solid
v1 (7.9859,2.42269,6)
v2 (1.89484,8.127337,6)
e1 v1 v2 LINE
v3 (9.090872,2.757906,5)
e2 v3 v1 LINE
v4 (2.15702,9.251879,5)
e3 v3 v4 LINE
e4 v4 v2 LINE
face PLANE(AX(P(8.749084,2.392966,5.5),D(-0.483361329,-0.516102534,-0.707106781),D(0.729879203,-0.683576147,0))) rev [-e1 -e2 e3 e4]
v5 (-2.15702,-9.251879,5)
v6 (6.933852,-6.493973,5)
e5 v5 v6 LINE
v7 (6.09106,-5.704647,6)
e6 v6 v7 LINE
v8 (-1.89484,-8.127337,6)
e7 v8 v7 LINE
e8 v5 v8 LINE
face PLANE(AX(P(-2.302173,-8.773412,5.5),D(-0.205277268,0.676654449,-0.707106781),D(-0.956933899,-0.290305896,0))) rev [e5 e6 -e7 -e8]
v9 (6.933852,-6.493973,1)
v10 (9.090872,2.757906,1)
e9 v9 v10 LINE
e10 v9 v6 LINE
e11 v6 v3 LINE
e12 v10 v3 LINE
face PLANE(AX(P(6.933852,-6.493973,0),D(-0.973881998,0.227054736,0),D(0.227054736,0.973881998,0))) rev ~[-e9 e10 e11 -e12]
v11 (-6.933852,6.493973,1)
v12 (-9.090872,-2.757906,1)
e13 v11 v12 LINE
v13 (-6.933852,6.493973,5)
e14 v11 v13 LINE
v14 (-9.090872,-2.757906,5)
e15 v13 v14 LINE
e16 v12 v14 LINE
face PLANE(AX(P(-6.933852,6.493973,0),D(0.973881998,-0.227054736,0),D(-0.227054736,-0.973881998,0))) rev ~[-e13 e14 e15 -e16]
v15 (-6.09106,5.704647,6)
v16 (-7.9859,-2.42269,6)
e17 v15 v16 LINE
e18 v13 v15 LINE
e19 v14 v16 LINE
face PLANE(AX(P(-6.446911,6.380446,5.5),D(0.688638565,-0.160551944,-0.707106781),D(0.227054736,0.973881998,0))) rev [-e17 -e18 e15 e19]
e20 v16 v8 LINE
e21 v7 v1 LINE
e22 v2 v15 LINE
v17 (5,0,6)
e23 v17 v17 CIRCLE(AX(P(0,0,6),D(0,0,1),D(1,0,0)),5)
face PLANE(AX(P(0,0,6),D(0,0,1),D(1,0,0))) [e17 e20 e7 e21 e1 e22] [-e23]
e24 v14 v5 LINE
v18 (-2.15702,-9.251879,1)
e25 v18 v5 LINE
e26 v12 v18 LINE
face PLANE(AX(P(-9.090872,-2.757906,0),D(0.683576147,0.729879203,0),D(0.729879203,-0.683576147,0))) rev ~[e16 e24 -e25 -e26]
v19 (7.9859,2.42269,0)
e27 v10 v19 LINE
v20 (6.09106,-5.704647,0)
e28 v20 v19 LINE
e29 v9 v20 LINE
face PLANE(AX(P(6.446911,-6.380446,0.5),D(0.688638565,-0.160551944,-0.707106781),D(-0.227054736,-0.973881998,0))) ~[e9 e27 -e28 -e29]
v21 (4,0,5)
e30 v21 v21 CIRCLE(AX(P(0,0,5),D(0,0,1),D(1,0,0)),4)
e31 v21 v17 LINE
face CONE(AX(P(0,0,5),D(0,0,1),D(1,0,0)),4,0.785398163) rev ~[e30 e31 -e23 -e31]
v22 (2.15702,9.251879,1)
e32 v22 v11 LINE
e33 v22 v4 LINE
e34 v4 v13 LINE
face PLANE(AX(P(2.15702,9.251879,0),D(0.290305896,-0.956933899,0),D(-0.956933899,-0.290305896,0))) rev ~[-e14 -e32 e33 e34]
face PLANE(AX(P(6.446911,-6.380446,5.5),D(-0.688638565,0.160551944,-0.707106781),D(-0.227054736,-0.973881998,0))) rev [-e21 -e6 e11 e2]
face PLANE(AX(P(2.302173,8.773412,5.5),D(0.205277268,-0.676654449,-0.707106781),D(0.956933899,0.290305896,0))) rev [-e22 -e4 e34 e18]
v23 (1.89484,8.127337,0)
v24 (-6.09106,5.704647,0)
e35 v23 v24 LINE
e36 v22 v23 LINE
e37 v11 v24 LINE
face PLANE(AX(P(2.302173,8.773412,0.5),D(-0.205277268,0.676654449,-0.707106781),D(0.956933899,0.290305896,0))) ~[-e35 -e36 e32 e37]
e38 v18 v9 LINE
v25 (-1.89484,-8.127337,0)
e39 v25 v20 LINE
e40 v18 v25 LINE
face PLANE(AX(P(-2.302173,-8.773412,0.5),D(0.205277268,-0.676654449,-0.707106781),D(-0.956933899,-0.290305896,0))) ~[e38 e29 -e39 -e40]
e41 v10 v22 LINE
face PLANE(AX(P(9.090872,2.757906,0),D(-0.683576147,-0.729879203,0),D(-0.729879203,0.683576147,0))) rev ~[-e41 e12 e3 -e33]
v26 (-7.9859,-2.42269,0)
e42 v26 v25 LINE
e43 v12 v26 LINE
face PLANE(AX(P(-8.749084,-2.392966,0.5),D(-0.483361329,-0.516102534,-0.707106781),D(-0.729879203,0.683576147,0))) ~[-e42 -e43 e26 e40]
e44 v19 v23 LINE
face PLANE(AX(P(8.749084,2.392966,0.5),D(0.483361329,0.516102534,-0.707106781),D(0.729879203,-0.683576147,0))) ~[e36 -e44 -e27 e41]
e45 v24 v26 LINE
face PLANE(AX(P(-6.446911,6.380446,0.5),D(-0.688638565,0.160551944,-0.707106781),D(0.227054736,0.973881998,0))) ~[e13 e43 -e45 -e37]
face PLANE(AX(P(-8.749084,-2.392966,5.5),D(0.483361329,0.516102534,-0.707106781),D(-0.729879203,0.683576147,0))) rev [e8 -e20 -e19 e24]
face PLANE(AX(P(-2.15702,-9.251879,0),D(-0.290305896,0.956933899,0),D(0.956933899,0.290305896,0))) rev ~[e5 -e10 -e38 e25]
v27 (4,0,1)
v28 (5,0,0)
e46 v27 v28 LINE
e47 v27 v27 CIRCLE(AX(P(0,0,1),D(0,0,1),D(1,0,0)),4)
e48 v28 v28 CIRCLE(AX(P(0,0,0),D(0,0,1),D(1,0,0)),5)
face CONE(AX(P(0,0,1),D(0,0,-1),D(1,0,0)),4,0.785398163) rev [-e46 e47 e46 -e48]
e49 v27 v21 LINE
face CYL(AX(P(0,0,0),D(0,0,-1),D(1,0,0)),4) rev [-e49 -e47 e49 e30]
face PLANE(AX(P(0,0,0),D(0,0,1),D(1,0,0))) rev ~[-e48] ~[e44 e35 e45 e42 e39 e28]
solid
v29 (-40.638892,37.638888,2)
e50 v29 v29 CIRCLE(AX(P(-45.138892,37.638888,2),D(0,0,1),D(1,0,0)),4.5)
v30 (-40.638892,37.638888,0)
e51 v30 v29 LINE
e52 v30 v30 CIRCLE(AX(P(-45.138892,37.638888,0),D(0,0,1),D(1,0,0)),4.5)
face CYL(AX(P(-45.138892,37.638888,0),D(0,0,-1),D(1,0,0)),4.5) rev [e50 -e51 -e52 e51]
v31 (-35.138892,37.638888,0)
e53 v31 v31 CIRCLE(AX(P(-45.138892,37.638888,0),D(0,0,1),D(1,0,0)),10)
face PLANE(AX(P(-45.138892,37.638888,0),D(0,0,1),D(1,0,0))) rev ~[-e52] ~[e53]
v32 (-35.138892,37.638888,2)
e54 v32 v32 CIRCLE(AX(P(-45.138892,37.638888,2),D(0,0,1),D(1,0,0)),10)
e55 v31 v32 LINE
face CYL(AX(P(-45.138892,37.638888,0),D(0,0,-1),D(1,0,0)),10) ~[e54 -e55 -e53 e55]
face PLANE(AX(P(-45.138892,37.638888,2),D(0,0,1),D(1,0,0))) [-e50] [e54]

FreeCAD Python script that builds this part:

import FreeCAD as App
import Part
import Sketcher

V = App.Vector


def edges_at(feature, points):
    """Names of the edges that pass closest to the given points."""
    edges = feature.Shape.Edges
    near = lambda p: min(range(len(edges)), key=lambda i: edges[i].distToShape(Part.Vertex(*p))[0])
    return sorted({f"Edge{near(p) + 1}" for p in points})

doc = App.newDocument("Part")
body = doc.addObject("PartDesign::Body", "Body")

sketch1 = body.newObject("Sketcher::SketchObject", "Sketch")
sketch1.AttachmentSupport = (doc.getObject("XY_Plane"), [""])
sketch1.MapMode = "FlatFace"
sketch1.addGeometry(Part.LineSegment(V(6.9, -6.5, 0), V(9.1, 2.8, 0)), False)
sketch1.addGeometry(Part.LineSegment(V(9.1, 2.8, 0), V(2.2, 9.3, 0)), False)
sketch1.addGeometry(Part.LineSegment(V(2.2, 9.3, 0), V(-6.9, 6.5, 0)), False)
sketch1.addGeometry(Part.LineSegment(V(-6.9, 6.5, 0), V(-9.1, -2.8, 0)), False)
sketch1.addGeometry(Part.LineSegment(V(-9.1, -2.8, 0), V(-2.2, -9.3, 0)), False)
sketch1.addGeometry(Part.LineSegment(V(-2.2, -9.3, 0), V(6.9, -6.5, 0)), False)
sketch1.addGeometry(Part.Circle(V(0, 0, 0), V(0, 0, 1), 4), False)
sketch1.addConstraint(Sketcher.Constraint("Coincident", 0, 2, 1, 1))
sketch1.addConstraint(Sketcher.Constraint("Coincident", 1, 2, 2, 1))
sketch1.addConstraint(Sketcher.Constraint("Coincident", 2, 2, 3, 1))
sketch1.addConstraint(Sketcher.Constraint("Coincident", 3, 2, 4, 1))
sketch1.addConstraint(Sketcher.Constraint("Coincident", 4, 2, 5, 1))
sketch1.addConstraint(Sketcher.Constraint("Coincident", 5, 2, 0, 1))
sketch1.addConstraint(Sketcher.Constraint("Coincident", 6, 3, -1, 1))
sketch1.addConstraint(Sketcher.Constraint("Symmetric", 0, 2, 3, 2, -1, 1))
sketch1.addConstraint(Sketcher.Constraint("Symmetric", 1, 2, 4, 2, -1, 1))
sketch1.addConstraint(Sketcher.Constraint("Symmetric", 2, 2, 5, 2, -1, 1))
sketch1.addConstraint(Sketcher.Constraint("Equal", 0, 1))
sketch1.addConstraint(Sketcher.Constraint("Equal", 1, 2))
sketch1.addConstraint(Sketcher.Constraint("Diameter", 6, 8.0))
sketch1.addConstraint(Sketcher.Constraint("Distance", 0, 9.5))
sketch1.addConstraint(Sketcher.Constraint("DistanceX", -1, 1, 0, 2, 9.090872))
sketch1.addConstraint(Sketcher.Constraint("DistanceX", -1, 1, 1, 2, 2.15702))
sketch1.addConstraint(Sketcher.Constraint("DistanceY", -1, 1, 1, 2, 9.251879))
pad1 = body.newObject("PartDesign::Pad", "Pad")
pad1.Profile = sketch1
pad1.Length = 6
doc.recompute()

chamfer = body.newObject("PartDesign::Chamfer", "Chamfer")
chamfer.Base = (pad1, edges_at(pad1, [
    (-8.012, 1.868, 6),
    (-5.624, -6.005, 6),
    (2.388, -7.873, 6),
    (8.012, -1.868, 6),
    (5.624, 6.005, 6),
    (-2.388, 7.873, 6),
    (2.388, -7.873, 0),
    (8.012, -1.868, 0),
    (5.624, 6.005, 0),
    (-2.388, 7.873, 0),
    (-8.012, 1.868, 0),
    (-5.624, -6.005, 0),
    (-4, 0, 0),
    (4, 0, 3),
    (-4, 0, 6),
]))
chamfer.Size = 1
body2 = doc.addObject("PartDesign::Body", "Body001")

sketch2 = body2.newObject("Sketcher::SketchObject", "Sketch001")
sketch2.AttachmentSupport = (doc.getObject("XY_Plane001"), [""])
sketch2.MapMode = "FlatFace"
sketch2.addGeometry(Part.Circle(V(-45.1, 37.6, 0), V(0, 0, 1), 10), False)
sketch2.addGeometry(Part.Circle(V(-45.1, 37.6, 0), V(0, 0, 1), 4.5), False)
sketch2.addConstraint(Sketcher.Constraint("Coincident", 1, 3, 0, 3))
sketch2.addConstraint(Sketcher.Constraint("Diameter", 0, 20.0))
sketch2.addConstraint(Sketcher.Constraint("Diameter", 1, 9.0))
sketch2.addConstraint(Sketcher.Constraint("DistanceX", 0, 3, -1, 1, 45.138892))
sketch2.addConstraint(Sketcher.Constraint("DistanceY", -1, 1, 0, 3, 37.638888))
pad2 = body2.newObject("PartDesign::Pad", "Pad001")
pad2.Profile = sketch2
pad2.Length = 2

doc.recompute()
